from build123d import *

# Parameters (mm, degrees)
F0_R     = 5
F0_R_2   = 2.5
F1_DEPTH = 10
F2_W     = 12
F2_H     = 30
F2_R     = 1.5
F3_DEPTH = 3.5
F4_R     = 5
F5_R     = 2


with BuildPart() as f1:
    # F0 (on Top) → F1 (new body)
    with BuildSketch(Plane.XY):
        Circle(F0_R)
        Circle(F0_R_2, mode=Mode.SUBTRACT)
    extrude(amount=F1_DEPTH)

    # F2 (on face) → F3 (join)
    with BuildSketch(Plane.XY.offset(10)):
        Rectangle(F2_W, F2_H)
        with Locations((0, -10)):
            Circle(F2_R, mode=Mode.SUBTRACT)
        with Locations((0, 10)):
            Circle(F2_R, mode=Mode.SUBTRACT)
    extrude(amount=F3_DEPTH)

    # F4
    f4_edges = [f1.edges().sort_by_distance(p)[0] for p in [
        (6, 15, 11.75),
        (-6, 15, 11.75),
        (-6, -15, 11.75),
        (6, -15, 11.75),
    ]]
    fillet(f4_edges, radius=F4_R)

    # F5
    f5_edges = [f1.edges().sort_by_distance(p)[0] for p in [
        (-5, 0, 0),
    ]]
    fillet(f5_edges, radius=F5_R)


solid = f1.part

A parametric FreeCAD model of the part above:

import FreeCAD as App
import Part
import Sketcher
from FreeCAD import Vector
Q = App.Units.Quantity


def edges_at(feature, points):
    """Names of the edges that pass closest to the given points."""
    edges = feature.Shape.Edges
    near = lambda p: min(range(len(edges)), key=lambda i: edges[i].distToShape(Part.Vertex(*p))[0])
    return sorted({f"Edge{near(p) + 1}" for p in points})

doc = App.newDocument("Part")
params = doc.addObject("Spreadsheet::Sheet", "Params")
for row, (alias, value) in enumerate([
    ("sketch1_diameter", "10 mm"),
    ("sketch1_diameter2", "5 mm"),
    ("pad1_length", "10 mm"),
    ("sketch2_diameter", "3 mm"),
    ("sketch2_width", "12 mm"),
    ("sketch2_height", "30 mm"),
    ("pad2_length", "3.5 mm"),
    ("fillet_radius", "5 mm"),
    ("fillet2_radius", "2 mm"),
], start=1):
    params.set(f"A{row}", alias)
    params.set(f"B{row}", "=" + value)
    params.setAlias(f"B{row}", alias)

body = doc.addObject("PartDesign::Body", "Body")

# Sketch on XY plane
sketch1 = body.newObject("Sketcher::SketchObject", "Sketch")
sketch1.AttachmentSupport = (doc.getObject("XY_Plane"), [""])
sketch1.MapMode = "FlatFace"
sketch1.addGeometry(Part.Circle(Vector(0, 0, 0), Vector(0, 0, 1), 5), False)
sketch1.addGeometry(Part.Circle(Vector(0, 0, 0), Vector(0, 0, 1), 2.5), False)
sketch1.addConstraint(Sketcher.Constraint("Coincident", 0, 3, -1, 1))
sketch1.addConstraint(Sketcher.Constraint("Coincident", 1, 3, -1, 1))
sketch1.addConstraint(Sketcher.Constraint("Diameter", 0, Q("10 mm")))
sketch1.addConstraint(Sketcher.Constraint("Diameter", 1, Q("5 mm")))
sketch1.setExpression("Constraints[2]", "Params.sketch1_diameter")
sketch1.setExpression("Constraints[3]", "Params.sketch1_diameter2")
pad1 = body.newObject("PartDesign::Pad", "Pad")
pad1.Profile = sketch1
pad1.setExpression("Length", "Params.pad1_length")

# Sketch on XY plane
sketch2 = body.newObject("Sketcher::SketchObject", "Sketch001")
sketch2.AttachmentSupport = (doc.getObject("XY_Plane"), [""])
sketch2.MapMode = "FlatFace"
sketch2.AttachmentOffset = App.Placement(Vector(0, 0, 10), App.Rotation())
sketch2.addGeometry(Part.LineSegment(Vector(-6, 15, 0), Vector(-6, -15, 0)), False)
sketch2.addGeometry(Part.LineSegment(Vector(-6, -15, 0), Vector(6, -15, 0)), False)
sketch2.addGeometry(Part.LineSegment(Vector(6, -15, 0), Vector(6, 15, 0)), False)
sketch2.addGeometry(Part.LineSegment(Vector(6, 15, 0), Vector(-6, 15, 0)), False)
sketch2.addGeometry(Part.Circle(Vector(0, -10, 0), Vector(0, 0, 1), 1.5), False)
sketch2.addGeometry(Part.Circle(Vector(0, 10, 0), Vector(0, 0, 1), 1.5), False)
sketch2.addConstraint(Sketcher.Constraint("Coincident", 0, 2, 1, 1))
sketch2.addConstraint(Sketcher.Constraint("Coincident", 1, 2, 2, 1))
sketch2.addConstraint(Sketcher.Constraint("Coincident", 2, 2, 3, 1))
sketch2.addConstraint(Sketcher.Constraint("Coincident", 3, 2, 0, 1))
sketch2.addConstraint(Sketcher.Constraint("Vertical", 0))
sketch2.addConstraint(Sketcher.Constraint("Horizontal", 1))
sketch2.addConstraint(Sketcher.Constraint("Vertical", 2))
sketch2.addConstraint(Sketcher.Constraint("Horizontal", 3))
sketch2.addConstraint(Sketcher.Constraint("Equal", 4, 5))
sketch2.addConstraint(Sketcher.Constraint("Symmetric", 4, 3, 5, 3, -1, 1))
sketch2.addConstraint(Sketcher.Constraint("Symmetric", 0, 2, 2, 2, -1, 1))
sketch2.addConstraint(Sketcher.Constraint("PointOnObject", 4, 3, -2))
sketch2.addConstraint(Sketcher.Constraint("Diameter", 4, Q("3 mm")))
sketch2.addConstraint(Sketcher.Constraint("DistanceX", 1, 1, 1, 2, Q("12 mm")))
sketch2.addConstraint(Sketcher.Constraint("DistanceY", 0, 2, 0, 1, Q("30 mm")))
sketch2.addConstraint(Sketcher.Constraint("DistanceY", 4, 3, -1, 1, Q("10 mm")))
sketch2.setExpression("Constraints[12]", "Params.sketch2_diameter")
sketch2.setExpression("Constraints[13]", "Params.sketch2_width")
sketch2.setExpression("Constraints[14]", "Params.sketch2_height")
pad2 = body.newObject("PartDesign::Pad", "Pad001")
pad2.Profile = sketch2
pad2.setExpression("Length", "Params.pad2_length")
doc.recompute()

fillet = body.newObject("PartDesign::Fillet", "Fillet")
fillet.Base = (pad2, edges_at(pad2, [
    (6, 15, 11.75),
    (-6, 15, 11.75),
    (-6, -15, 11.75),
    (6, -15, 11.75),
]))
fillet.setExpression("Radius", "Params.fillet_radius")
doc.recompute()

fillet2 = body.newObject("PartDesign::Fillet", "Fillet001")
fillet2.Base = (fillet, edges_at(fillet, [(-5, 0, 0)]))
fillet2.setExpression("Radius", "Params.fillet2_radius")

doc.recompute()
